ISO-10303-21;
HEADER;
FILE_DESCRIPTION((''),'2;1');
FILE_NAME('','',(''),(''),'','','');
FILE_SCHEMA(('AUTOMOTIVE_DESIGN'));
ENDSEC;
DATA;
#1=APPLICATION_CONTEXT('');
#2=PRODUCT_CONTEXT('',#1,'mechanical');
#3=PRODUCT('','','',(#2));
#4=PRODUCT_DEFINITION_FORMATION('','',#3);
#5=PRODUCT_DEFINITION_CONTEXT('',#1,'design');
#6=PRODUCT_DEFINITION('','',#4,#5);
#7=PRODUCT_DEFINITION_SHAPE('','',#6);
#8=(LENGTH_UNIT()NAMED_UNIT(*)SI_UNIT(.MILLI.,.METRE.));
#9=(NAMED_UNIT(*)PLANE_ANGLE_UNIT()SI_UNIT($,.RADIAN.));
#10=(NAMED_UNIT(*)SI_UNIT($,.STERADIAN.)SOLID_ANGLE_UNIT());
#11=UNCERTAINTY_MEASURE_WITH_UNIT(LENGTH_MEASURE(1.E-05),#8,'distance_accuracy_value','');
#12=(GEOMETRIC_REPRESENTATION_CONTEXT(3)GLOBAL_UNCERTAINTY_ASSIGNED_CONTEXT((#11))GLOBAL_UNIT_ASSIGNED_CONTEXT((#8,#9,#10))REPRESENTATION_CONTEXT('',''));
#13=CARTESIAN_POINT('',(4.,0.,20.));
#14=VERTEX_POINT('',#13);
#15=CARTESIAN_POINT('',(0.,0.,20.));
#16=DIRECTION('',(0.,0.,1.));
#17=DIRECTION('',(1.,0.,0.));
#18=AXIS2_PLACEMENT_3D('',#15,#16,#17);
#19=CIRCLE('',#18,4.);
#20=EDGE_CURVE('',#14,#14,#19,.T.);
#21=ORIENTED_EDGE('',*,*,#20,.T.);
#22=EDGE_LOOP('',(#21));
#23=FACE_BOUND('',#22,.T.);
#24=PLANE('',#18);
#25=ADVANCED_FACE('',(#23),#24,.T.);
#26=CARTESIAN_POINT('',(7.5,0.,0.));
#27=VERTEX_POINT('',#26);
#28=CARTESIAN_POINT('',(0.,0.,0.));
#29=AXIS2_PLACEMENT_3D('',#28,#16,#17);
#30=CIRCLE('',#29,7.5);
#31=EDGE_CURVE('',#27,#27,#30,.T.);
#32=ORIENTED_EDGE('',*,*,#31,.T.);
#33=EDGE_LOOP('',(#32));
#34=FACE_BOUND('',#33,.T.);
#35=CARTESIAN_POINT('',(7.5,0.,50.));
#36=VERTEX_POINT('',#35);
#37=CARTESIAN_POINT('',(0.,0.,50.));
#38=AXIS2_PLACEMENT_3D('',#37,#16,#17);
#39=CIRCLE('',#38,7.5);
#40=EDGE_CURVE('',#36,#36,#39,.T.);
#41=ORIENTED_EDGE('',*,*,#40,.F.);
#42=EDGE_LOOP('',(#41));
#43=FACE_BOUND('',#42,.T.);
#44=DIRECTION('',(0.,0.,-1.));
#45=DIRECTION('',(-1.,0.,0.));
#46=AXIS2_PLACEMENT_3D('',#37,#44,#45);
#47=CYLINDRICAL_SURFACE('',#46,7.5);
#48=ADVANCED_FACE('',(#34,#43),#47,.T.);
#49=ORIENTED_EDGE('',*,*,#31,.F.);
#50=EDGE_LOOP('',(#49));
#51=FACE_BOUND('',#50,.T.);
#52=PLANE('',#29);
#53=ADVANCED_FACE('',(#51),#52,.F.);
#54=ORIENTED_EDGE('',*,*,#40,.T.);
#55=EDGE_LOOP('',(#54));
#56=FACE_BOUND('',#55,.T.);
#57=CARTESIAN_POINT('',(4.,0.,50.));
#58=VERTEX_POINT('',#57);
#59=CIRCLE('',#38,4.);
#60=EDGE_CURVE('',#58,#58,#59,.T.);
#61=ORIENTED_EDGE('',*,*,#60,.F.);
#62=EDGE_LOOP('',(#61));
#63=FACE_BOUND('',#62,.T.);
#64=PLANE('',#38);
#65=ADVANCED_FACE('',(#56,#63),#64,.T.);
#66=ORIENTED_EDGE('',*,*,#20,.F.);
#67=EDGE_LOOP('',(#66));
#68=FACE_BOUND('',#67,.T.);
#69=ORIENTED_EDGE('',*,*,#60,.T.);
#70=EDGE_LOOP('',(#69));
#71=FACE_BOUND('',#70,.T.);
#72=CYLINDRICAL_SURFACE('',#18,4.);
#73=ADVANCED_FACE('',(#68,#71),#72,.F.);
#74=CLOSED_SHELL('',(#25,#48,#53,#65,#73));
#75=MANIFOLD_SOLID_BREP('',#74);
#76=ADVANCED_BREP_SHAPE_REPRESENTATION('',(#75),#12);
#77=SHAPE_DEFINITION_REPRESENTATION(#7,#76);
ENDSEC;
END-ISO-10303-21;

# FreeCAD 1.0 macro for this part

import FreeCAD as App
import Part
import Sketcher
from FreeCAD import Vector

doc = App.newDocument("Part")
params = doc.addObject("Spreadsheet::Sheet", "Params")
for row, (alias, value) in enumerate([
    ("sketch1_diameter", "15 mm"),
    ("pad1_length", "50 mm"),
    ("sketch2_diameter", "8 mm"),
    ("pocket1_length", "30 mm"),
], start=1):
    params.set(f"A{row}", alias)
    params.set(f"B{row}", "=" + value)
    params.setAlias(f"B{row}", alias)

body = doc.addObject("PartDesign::Body", "Body")

# Sketch on XY plane
sketch1 = body.newObject("Sketcher::SketchObject", "Sketch")
sketch1.AttachmentSupport = (doc.getObject("XY_Plane"), [""])
sketch1.MapMode = "FlatFace"
sketch1.addGeometry(Part.Circle(Vector(0, 0, 0), Vector(0, 0, 1), 8), False)
sketch1.addConstraint([
    Sketcher.Constraint("Coincident", 0, 3, -1, 1),
    Sketcher.Constraint("Diameter", 0, 15.0),
])
sketch1.setExpression("Constraints[1]", "Params.sketch1_diameter")
pad1 = body.newObject("PartDesign::Pad", "Pad")
pad1.Profile = sketch1
pad1.setExpression("Length", "Params.pad1_length")

# Sketch on XY plane
sketch2 = body.newObject("Sketcher::SketchObject", "Sketch001")
sketch2.AttachmentSupport = (doc.getObject("XY_Plane"), [""])
sketch2.MapMode = "FlatFace"
sketch2.AttachmentOffset = App.Placement(Vector(0, 0, 50), App.Rotation())
sketch2.addGeometry(Part.Circle(Vector(0, 0, 0), Vector(0, 0, 1), 4), False)
sketch2.addConstraint([
    Sketcher.Constraint("Coincident", 0, 3, -1, 1),
    Sketcher.Constraint("Diameter", 0, 8.0),
])
sketch2.setExpression("Constraints[1]", "Params.sketch2_diameter")
pocket1 = body.newObject("PartDesign::Pocket", "Pocket")
pocket1.Profile = sketch2
pocket1.setExpression("Length", "Params.pocket1_length")

doc.recompute()
